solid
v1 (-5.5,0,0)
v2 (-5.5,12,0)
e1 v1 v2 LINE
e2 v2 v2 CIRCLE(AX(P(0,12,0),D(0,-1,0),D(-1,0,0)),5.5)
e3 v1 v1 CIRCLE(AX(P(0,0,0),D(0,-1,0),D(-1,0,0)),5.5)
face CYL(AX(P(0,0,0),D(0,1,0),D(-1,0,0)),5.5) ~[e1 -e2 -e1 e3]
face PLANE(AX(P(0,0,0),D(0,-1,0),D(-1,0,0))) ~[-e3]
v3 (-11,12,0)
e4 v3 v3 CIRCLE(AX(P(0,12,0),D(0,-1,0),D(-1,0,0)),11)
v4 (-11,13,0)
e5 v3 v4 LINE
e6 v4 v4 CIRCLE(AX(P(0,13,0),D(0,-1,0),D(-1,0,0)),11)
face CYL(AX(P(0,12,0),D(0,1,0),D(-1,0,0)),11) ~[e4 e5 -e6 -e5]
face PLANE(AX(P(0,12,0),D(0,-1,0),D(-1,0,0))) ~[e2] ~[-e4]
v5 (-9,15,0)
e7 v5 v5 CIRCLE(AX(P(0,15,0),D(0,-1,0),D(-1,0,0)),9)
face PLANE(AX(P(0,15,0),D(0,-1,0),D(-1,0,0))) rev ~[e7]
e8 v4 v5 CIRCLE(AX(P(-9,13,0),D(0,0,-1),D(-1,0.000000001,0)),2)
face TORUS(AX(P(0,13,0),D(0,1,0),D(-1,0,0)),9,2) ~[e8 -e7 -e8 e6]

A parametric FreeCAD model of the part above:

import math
import FreeCAD as App
import Part
import Sketcher
Q = App.Units.Quantity

doc = App.newDocument("Part")
params = doc.addObject("Spreadsheet::Sheet", "Params")
for row, (alias, value) in enumerate([
    ("sketch1_radius", "2 mm"),
    ("sketch1_width", "9 mm"),
    ("sketch1_height", "15 mm"),
    ("sketch1_height2", "1 mm"),
    ("revolution_angle", "360 deg"),
], start=1):
    params.set(f"A{row}", alias)
    params.set(f"B{row}", "=" + value)
    params.setAlias(f"B{row}", alias)

body = doc.addObject("PartDesign::Body", "Body")

sketch1 = body.newObject("Sketcher::SketchObject", "Sketch")
sketch1.AttachmentSupport = (doc.getObject("XY_Plane"), [""])
sketch1.MapMode = "FlatFace"
sketch1.addGeometry([
    Part.LineSegment(App.Vector(-5.5, 0, 0), App.Vector(0, 0, 0)),
    Part.LineSegment(App.Vector(0, 0, 0), App.Vector(0, 15, 0)),
    Part.LineSegment(App.Vector(0, 15, 0), App.Vector(-9, 15, 0)),
    Part.ArcOfCircle(Part.Circle(App.Vector(-9, 13, 0), App.Vector(0, 0, 1), 2), math.radians(90), math.radians(180)),
    Part.LineSegment(App.Vector(-11, 13, 0), App.Vector(-11, 12, 0)),
    Part.LineSegment(App.Vector(-11, 12, 0), App.Vector(-5.5, 12, 0)),
    Part.LineSegment(App.Vector(-5.5, 12, 0), App.Vector(-5.5, 0, 0)),
], False)
sketch1.addConstraint([
    Sketcher.Constraint("Coincident", 0, 2, 1, 1),
    Sketcher.Constraint("Coincident", 1, 2, 2, 1),
    Sketcher.Constraint("Tangent", 2, 2, 3, 1),
    Sketcher.Constraint("Tangent", 3, 2, 4, 1),
    Sketcher.Constraint("Coincident", 4, 2, 5, 1),
    Sketcher.Constraint("Coincident", 5, 2, 6, 1),
    Sketcher.Constraint("Coincident", 6, 2, 0, 1),
    Sketcher.Constraint("Horizontal", 0),
    Sketcher.Constraint("Vertical", 1),
    Sketcher.Constraint("Horizontal", 2),
    Sketcher.Constraint("Vertical", 4),
    Sketcher.Constraint("Horizontal", 5),
    Sketcher.Constraint("Vertical", 6),
    Sketcher.Constraint("Coincident", 0, 2, -1, 1),
    Sketcher.Constraint("Equal", 0, 5),
    Sketcher.Constraint("Radius", 3, Q("2 mm")),
    Sketcher.Constraint("DistanceX", 2, 2, 2, 1, Q("9 mm")),
    Sketcher.Constraint("DistanceY", 1, 1, 1, 2, Q("15 mm")),
    Sketcher.Constraint("DistanceY", 4, 2, 4, 1, Q("1 mm")),
])
sketch1.setExpression("Constraints[15]", "Params.sketch1_radius")
sketch1.setExpression("Constraints[16]", "Params.sketch1_width")
sketch1.setExpression("Constraints[17]", "Params.sketch1_height")
sketch1.setExpression("Constraints[18]", "Params.sketch1_height2")
revolution = body.newObject("PartDesign::Revolution", "Revolution")
revolution.Profile = sketch1
revolution.ReferenceAxis = (sketch1, ["V_Axis"])
revolution.setExpression("Angle", "Params.revolution_angle")

doc.recompute()
